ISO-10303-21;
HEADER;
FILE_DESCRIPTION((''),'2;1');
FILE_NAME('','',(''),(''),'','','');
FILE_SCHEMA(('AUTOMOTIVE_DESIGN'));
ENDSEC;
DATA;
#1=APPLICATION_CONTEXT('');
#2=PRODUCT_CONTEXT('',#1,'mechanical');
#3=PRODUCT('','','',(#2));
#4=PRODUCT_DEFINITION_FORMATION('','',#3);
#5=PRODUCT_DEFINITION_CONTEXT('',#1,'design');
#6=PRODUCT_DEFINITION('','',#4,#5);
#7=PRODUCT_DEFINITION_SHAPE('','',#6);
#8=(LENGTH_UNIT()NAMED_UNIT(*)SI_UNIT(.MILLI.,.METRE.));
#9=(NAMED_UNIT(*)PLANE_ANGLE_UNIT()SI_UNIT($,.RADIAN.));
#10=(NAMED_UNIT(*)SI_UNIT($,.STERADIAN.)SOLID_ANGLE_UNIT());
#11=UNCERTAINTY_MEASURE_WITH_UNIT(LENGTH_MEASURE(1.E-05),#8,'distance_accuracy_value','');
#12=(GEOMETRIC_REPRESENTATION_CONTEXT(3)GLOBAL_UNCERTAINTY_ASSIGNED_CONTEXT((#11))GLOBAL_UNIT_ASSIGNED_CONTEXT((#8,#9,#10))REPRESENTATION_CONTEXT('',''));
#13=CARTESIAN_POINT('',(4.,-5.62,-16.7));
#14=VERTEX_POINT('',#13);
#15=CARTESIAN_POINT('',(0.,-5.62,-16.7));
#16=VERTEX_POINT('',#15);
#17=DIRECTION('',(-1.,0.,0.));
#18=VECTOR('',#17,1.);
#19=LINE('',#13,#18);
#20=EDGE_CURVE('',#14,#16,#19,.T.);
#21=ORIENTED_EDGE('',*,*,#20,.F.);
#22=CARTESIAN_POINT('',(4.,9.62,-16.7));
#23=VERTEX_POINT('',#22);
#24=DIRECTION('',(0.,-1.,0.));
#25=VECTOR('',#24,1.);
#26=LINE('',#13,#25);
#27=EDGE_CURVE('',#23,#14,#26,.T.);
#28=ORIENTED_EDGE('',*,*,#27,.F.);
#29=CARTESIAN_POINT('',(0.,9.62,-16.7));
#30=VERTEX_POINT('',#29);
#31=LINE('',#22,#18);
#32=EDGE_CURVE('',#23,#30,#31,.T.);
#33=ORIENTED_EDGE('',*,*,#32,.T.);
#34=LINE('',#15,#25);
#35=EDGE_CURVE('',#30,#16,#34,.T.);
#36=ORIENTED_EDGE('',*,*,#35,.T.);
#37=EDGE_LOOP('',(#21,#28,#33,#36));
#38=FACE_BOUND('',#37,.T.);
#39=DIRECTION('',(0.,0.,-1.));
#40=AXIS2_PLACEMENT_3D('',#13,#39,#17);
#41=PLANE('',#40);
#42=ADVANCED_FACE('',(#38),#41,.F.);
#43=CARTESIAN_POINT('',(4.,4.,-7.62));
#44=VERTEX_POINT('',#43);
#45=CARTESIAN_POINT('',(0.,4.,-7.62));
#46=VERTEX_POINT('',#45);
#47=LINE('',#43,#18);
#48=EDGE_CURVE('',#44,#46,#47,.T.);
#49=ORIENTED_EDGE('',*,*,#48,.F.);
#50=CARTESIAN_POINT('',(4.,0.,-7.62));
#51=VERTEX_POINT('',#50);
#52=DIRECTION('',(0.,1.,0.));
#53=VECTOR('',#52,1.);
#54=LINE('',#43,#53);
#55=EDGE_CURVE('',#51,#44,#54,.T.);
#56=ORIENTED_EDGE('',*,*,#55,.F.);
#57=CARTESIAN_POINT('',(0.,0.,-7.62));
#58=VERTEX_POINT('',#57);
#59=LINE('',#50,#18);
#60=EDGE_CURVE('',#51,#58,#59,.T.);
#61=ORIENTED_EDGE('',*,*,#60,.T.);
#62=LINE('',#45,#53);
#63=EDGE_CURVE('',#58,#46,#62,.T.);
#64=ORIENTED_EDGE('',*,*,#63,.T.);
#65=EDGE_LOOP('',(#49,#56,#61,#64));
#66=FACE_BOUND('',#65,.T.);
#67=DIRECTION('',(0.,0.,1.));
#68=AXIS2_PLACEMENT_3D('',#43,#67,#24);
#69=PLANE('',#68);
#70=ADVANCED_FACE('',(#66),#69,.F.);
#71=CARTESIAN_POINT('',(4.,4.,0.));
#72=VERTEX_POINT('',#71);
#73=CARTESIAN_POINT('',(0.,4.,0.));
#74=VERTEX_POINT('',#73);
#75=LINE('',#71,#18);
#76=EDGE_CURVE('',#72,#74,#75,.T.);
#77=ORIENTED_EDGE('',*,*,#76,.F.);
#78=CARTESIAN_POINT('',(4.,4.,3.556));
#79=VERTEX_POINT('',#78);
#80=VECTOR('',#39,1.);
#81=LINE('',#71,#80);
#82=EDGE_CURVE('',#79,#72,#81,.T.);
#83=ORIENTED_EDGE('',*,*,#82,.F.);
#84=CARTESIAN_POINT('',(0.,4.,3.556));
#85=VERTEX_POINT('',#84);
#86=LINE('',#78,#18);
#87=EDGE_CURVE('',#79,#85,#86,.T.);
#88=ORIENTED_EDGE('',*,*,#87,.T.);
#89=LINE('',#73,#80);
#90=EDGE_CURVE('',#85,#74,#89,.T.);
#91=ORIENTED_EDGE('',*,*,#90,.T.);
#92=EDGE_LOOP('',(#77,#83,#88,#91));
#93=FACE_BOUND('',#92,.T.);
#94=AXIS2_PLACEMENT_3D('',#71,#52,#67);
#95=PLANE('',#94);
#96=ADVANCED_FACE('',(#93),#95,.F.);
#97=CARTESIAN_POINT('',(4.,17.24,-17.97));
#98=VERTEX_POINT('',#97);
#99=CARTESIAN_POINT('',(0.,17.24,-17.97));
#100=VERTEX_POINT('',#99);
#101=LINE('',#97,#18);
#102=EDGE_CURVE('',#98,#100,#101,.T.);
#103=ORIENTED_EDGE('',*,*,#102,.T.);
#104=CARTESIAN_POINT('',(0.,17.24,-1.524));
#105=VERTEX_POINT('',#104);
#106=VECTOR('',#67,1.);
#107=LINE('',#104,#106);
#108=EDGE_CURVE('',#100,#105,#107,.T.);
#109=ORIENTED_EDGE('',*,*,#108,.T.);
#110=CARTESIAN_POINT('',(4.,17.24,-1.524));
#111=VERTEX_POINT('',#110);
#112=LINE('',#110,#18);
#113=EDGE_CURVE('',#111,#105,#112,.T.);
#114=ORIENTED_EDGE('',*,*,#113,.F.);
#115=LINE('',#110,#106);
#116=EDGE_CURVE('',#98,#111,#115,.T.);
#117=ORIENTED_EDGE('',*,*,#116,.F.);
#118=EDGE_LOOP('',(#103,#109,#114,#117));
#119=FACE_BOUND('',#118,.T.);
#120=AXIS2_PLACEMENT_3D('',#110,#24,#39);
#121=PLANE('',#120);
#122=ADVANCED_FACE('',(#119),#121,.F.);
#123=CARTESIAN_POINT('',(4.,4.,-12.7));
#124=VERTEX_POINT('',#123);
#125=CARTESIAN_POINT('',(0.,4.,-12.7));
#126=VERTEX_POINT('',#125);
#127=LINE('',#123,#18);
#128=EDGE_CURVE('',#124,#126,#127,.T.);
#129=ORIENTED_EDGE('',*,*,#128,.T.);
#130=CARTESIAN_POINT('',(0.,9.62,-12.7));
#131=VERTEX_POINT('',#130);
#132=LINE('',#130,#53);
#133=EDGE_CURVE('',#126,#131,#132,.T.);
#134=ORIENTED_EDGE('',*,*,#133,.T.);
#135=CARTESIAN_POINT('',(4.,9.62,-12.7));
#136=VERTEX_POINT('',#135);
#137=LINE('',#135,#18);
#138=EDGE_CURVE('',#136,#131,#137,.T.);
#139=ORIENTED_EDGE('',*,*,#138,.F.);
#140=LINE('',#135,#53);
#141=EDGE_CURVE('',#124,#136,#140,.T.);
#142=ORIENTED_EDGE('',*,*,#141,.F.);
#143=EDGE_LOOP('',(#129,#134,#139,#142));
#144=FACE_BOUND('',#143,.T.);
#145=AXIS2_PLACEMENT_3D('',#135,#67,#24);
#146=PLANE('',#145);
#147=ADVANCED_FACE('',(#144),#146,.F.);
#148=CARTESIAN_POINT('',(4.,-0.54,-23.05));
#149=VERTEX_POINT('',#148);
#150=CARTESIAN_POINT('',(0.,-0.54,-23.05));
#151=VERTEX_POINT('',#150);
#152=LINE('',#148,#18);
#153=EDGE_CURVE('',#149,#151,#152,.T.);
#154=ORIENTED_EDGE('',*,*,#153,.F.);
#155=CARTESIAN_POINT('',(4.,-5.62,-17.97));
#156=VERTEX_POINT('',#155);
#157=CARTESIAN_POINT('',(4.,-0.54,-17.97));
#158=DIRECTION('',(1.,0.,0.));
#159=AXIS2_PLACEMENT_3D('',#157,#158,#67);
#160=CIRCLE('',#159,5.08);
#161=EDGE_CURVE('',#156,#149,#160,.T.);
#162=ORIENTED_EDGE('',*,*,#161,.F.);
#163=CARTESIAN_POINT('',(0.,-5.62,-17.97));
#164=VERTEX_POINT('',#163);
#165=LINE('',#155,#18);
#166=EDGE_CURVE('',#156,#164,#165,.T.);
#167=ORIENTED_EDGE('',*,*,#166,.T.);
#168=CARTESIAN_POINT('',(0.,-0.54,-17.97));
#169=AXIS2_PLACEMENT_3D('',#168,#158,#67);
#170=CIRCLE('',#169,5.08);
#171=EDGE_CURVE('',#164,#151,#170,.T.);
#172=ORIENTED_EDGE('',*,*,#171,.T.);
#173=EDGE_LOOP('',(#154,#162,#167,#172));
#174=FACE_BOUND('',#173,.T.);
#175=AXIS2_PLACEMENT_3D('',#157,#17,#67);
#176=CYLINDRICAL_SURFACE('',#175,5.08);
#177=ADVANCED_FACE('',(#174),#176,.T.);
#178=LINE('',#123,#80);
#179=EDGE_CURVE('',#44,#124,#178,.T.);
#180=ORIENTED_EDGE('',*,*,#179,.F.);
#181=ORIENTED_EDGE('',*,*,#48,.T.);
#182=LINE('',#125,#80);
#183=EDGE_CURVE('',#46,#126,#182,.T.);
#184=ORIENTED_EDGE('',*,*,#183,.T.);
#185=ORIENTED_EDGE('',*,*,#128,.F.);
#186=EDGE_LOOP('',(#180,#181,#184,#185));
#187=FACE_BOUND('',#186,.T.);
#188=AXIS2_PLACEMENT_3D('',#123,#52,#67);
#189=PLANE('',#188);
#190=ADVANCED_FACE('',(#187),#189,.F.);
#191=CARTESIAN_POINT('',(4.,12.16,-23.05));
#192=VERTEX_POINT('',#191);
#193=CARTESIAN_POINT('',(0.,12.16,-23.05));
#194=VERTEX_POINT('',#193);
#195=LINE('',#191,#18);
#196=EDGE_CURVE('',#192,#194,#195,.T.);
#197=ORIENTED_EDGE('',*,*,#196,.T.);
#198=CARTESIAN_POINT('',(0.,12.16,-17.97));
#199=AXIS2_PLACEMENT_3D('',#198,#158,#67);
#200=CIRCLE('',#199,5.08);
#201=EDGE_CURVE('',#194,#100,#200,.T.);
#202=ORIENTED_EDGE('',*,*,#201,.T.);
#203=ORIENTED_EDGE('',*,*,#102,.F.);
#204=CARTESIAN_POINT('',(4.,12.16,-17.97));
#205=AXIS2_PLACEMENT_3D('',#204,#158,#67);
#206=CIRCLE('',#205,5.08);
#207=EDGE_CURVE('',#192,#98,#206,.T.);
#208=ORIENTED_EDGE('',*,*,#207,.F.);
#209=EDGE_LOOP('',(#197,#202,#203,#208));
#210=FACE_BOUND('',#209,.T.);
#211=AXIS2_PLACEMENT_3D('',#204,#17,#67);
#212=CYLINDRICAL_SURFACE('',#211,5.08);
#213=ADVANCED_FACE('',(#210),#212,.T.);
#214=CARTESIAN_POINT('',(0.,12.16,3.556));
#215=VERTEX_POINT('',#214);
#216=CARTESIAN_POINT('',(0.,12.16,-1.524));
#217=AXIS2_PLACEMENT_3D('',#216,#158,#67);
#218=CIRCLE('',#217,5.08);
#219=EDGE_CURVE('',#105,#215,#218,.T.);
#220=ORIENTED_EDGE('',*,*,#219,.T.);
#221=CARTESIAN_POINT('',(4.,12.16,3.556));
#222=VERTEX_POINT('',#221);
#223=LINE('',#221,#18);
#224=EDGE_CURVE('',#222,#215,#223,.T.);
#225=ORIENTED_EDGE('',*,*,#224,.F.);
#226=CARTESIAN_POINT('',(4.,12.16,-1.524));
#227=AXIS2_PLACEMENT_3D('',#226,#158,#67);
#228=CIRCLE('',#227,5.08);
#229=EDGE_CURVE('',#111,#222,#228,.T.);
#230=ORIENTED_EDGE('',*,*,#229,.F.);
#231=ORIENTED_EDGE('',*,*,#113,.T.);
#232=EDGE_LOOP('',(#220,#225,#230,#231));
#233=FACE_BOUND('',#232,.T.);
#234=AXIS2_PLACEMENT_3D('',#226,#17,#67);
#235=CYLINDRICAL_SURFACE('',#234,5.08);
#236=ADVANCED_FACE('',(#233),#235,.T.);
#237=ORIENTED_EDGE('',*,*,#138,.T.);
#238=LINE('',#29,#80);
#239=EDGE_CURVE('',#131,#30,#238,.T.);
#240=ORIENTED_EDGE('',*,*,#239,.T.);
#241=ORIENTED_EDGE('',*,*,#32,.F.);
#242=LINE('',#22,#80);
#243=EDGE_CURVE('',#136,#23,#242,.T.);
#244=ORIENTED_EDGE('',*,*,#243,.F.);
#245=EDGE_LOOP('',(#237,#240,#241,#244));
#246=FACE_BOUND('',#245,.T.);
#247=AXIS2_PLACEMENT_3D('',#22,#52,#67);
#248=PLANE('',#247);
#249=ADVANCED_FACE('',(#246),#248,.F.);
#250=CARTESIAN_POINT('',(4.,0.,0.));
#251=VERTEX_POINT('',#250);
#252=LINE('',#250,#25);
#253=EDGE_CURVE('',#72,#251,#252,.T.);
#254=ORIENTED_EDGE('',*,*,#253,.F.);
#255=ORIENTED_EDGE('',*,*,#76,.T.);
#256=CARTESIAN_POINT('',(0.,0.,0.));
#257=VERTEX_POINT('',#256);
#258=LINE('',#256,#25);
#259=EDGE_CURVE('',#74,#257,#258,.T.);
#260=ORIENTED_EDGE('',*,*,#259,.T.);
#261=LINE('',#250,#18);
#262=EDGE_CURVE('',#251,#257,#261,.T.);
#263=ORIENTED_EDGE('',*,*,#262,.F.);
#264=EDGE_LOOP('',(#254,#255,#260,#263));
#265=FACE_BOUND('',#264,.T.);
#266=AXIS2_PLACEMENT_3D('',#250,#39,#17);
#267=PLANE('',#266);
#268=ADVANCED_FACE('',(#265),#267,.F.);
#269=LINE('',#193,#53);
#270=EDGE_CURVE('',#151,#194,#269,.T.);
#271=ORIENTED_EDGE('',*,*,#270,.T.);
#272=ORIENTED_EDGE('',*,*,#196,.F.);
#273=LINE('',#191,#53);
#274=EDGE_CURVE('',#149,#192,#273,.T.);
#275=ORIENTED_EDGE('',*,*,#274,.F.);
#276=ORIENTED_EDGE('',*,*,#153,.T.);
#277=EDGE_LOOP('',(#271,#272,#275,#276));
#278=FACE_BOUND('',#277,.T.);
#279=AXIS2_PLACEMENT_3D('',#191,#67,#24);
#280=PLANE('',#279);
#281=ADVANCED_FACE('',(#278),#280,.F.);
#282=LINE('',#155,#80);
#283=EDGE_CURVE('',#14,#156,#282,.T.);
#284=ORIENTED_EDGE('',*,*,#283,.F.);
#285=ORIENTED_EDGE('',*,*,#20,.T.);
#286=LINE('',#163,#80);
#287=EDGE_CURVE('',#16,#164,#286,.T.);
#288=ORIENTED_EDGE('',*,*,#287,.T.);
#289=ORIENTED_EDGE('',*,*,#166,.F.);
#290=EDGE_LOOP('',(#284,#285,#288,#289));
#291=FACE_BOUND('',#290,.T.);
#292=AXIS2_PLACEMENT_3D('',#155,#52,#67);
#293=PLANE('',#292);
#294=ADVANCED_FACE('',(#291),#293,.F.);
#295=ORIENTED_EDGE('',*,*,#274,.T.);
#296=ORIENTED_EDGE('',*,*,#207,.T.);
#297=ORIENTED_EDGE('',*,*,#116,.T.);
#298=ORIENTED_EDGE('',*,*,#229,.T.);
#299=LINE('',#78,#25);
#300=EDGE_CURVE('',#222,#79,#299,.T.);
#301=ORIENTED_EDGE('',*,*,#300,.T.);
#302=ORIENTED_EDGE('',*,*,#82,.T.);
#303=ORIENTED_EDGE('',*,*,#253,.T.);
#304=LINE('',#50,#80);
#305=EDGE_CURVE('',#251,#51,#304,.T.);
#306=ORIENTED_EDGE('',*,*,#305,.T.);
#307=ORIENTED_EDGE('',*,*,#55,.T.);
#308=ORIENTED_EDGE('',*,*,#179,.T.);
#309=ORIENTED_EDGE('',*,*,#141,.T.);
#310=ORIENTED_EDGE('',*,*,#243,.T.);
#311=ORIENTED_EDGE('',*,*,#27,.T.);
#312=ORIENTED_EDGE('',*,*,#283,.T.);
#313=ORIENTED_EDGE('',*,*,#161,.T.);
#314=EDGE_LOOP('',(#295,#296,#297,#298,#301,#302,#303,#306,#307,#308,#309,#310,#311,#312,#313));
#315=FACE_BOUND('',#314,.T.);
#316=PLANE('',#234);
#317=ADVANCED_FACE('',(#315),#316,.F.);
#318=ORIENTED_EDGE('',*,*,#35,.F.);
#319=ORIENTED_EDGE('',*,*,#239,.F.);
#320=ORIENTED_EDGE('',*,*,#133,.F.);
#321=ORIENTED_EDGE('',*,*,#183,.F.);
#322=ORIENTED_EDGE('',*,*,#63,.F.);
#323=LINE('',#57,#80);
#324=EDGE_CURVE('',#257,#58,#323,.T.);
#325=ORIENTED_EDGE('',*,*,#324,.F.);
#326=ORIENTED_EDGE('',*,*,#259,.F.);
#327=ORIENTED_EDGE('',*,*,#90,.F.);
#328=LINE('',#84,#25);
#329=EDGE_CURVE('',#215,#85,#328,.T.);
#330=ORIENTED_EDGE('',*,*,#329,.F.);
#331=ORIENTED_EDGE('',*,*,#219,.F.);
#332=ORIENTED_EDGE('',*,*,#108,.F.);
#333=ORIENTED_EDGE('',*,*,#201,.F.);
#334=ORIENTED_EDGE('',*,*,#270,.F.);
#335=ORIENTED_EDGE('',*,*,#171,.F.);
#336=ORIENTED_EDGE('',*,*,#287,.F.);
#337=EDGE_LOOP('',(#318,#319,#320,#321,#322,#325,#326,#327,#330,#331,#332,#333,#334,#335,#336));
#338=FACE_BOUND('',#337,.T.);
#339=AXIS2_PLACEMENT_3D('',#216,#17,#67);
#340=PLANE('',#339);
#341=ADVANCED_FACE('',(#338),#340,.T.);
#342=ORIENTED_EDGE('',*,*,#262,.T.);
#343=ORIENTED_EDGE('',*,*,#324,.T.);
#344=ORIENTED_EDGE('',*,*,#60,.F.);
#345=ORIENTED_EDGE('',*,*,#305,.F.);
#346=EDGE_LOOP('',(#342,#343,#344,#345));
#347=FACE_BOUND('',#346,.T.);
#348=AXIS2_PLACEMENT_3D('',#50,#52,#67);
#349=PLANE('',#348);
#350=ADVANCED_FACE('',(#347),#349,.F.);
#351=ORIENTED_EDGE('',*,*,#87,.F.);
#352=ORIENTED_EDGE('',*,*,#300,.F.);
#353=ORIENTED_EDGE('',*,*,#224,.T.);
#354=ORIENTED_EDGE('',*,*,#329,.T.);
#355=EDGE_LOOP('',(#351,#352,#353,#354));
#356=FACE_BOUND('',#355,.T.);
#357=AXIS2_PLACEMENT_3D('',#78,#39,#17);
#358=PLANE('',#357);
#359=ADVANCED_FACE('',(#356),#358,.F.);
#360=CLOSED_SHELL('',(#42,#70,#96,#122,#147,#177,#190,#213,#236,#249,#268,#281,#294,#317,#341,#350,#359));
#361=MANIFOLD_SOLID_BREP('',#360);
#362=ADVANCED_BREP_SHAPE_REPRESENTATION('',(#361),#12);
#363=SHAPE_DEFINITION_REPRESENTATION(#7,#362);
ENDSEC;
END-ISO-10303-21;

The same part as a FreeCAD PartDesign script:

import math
import FreeCAD as App
import Part
import Sketcher
from FreeCAD import Vector
Q = App.Units.Quantity

doc = App.newDocument("Part")
body = doc.addObject("PartDesign::Body", "Body")

sketch1 = doc.addObject("Sketcher::SketchObject", "Sketch")
body.addObject(sketch1)
sketch1.AttachmentSupport = (doc.YZ_Plane, [""])
sketch1.MapMode = "FlatFace"
sketch1.addGeometry([
    Part.LineSegment(Vector(4, 0, 0), Vector(0, 0, 0)),
    Part.LineSegment(Vector(0, 0, 0), Vector(0, -7.6, 0)),
    Part.LineSegment(Vector(0, -7.6, 0), Vector(4, -7.6, 0)),
    Part.LineSegment(Vector(4, -7.6, 0), Vector(4, -12.7, 0)),
    Part.LineSegment(Vector(4, -12.7, 0), Vector(9.6, -12.7, 0)),
    Part.LineSegment(Vector(9.6, -12.7, 0), Vector(9.6, -16.7, 0)),
    Part.LineSegment(Vector(9.6, -16.7, 0), Vector(-5.6, -16.7, 0)),
    Part.LineSegment(Vector(-5.6, -16.7, 0), Vector(-5.6, -18, 0)),
    Part.ArcOfCircle(Part.Circle(Vector(-0.5, -18, 0), Vector(0, 0, 1), 5.1), math.radians(-180), math.radians(-90)),
    Part.LineSegment(Vector(-0.5, -23.1, 0), Vector(12.2, -23.1, 0)),
    Part.ArcOfCircle(Part.Circle(Vector(12.2, -18, 0), Vector(0, 0, 1), 5.1), math.radians(-90), math.radians(0)),
    Part.LineSegment(Vector(17.2, -18, 0), Vector(17.2, -1.5, 0)),
    Part.ArcOfCircle(Part.Circle(Vector(12.2, -1.5, 0), Vector(0, 0, 1), 5.1), math.radians(0), math.radians(90)),
    Part.LineSegment(Vector(12.2, 3.6, 0), Vector(4, 3.6, 0)),
    Part.LineSegment(Vector(4, 3.6, 0), Vector(4, 0, 0)),
], False)
sketch1.addConstraint([
    Sketcher.Constraint("Coincident", 0, 2, 1, 1),
    Sketcher.Constraint("Coincident", 1, 2, 2, 1),
    Sketcher.Constraint("Coincident", 2, 2, 3, 1),
    Sketcher.Constraint("Coincident", 3, 2, 4, 1),
    Sketcher.Constraint("Coincident", 4, 2, 5, 1),
    Sketcher.Constraint("Coincident", 5, 2, 6, 1),
    Sketcher.Constraint("Coincident", 6, 2, 7, 1),
    Sketcher.Constraint("Tangent", 7, 2, 8, 1),
    Sketcher.Constraint("Tangent", 8, 2, 9, 1),
    Sketcher.Constraint("Tangent", 9, 2, 10, 1),
    Sketcher.Constraint("Tangent", 10, 2, 11, 1),
    Sketcher.Constraint("Tangent", 11, 2, 12, 1),
    Sketcher.Constraint("Tangent", 12, 2, 13, 1),
    Sketcher.Constraint("Coincident", 13, 2, 14, 1),
    Sketcher.Constraint("Coincident", 14, 2, 0, 1),
    Sketcher.Constraint("Horizontal", 0),
    Sketcher.Constraint("Vertical", 1),
    Sketcher.Constraint("Horizontal", 2),
    Sketcher.Constraint("Vertical", 3),
    Sketcher.Constraint("Horizontal", 4),
    Sketcher.Constraint("Vertical", 5),
    Sketcher.Constraint("Horizontal", 6),
    Sketcher.Constraint("Vertical", 7),
    Sketcher.Constraint("Horizontal", 9),
    Sketcher.Constraint("Vertical", 11),
    Sketcher.Constraint("Horizontal", 13),
    Sketcher.Constraint("Vertical", 14),
    Sketcher.Constraint("Coincident", 0, 2, -1, 1),
    Sketcher.Constraint("Equal", 8, 10),
    Sketcher.Constraint("Equal", 10, 12),
    Sketcher.Constraint("Vertical", 3, 2, 13, 2),
    Sketcher.Constraint("Equal", 2, 5),
    Sketcher.Constraint("Radius", 8, Q("0.2 in")),
    Sketcher.Constraint("DistanceX", 6, 2, 6, 1, Q("0.6 in")),
    Sketcher.Constraint("DistanceX", 9, 1, 9, 2, Q("0.5 in")),
    Sketcher.Constraint("DistanceY", 1, 2, 1, 1, Q("0.3 in")),
    Sketcher.Constraint("DistanceY", 3, 2, 3, 1, Q("0.2 in")),
    Sketcher.Constraint("DistanceY", 7, 2, 7, 1, Q("0.05 in")),
    Sketcher.Constraint("DistanceY", 14, 2, 14, 1, Q("0.14 in")),
    Sketcher.Constraint("DistanceX", 0, 2, 0, 1, 4.0),
    Sketcher.Constraint("DistanceX", 4, 1, 4, 2, 5.62),
])
pad1 = doc.addObject("PartDesign::Pad", "Pad")
body.addObject(pad1)
pad1.Profile = sketch1
pad1.Length = 4

doc.recompute()
